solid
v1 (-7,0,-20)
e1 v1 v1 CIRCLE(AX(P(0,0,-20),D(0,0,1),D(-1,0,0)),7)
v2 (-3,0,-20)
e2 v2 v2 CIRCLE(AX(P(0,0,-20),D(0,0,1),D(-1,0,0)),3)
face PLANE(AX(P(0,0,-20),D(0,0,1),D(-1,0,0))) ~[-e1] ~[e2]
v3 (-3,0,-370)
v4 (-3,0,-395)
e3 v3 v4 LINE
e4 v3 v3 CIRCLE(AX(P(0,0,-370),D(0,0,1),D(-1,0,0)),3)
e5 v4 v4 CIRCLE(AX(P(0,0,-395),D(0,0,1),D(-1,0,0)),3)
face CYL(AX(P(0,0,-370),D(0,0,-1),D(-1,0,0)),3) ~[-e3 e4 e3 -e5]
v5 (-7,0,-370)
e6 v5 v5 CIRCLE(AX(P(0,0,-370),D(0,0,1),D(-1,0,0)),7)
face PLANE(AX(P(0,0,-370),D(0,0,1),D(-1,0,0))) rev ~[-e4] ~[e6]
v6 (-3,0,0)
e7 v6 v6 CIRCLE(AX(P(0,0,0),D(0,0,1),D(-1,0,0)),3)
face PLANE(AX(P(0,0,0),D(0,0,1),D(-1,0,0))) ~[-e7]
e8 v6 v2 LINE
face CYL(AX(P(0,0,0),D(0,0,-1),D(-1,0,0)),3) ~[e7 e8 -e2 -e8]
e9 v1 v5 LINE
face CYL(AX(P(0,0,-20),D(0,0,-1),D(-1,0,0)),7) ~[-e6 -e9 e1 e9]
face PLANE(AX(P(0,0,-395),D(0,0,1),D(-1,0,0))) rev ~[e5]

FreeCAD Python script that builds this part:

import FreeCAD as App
import Part
import Sketcher
from FreeCAD import Vector
Q = App.Units.Quantity


def add_polygon(sketch, points):
    """Adds a closed chain of lines whose ends are joined by coincident constraints."""
    first, n = sketch.GeometryCount, len(points)
    for a, b in zip(points, points[1:] + points[:1]):
        sketch.addGeometry(Part.LineSegment(App.Vector(*a, 0), App.Vector(*b, 0)), False)
    for i in range(n):
        sketch.addConstraint(Sketcher.Constraint("Coincident", first + i, 2, first + (i + 1) % n, 1))

doc = App.newDocument("Part")
params = doc.addObject("Spreadsheet::Sheet", "Params")
for row, (alias, value) in enumerate([
    ("sketch1_width", "3 mm"),
    ("sketch1_width2", "4 mm"),
    ("sketch1_height", "25 mm"),
    ("sketch1_height2", "350 mm"),
    ("sketch1_height3", "20 mm"),
    ("revolution_angle", "360 deg"),
], start=1):
    params.set(f"A{row}", alias)
    params.set(f"B{row}", "=" + value)
    params.setAlias(f"B{row}", alias)

body = doc.addObject("PartDesign::Body", "Body")

# Sketch on XZ plane
sketch1 = doc.addObject("Sketcher::SketchObject", "Sketch")
body.addObject(sketch1)
sketch1.AttachmentSupport = (doc.XZ_Plane, [""])
sketch1.MapMode = "FlatFace"
add_polygon(sketch1, [(-3, 0), (0, 0), (0, -395), (-3, -395), (-3, -370), (-7, -370), (-7, -20), (-3, -20)])  # lines 0-7
sketch1.addConstraint(Sketcher.Constraint("Horizontal", 0))
sketch1.addConstraint(Sketcher.Constraint("Vertical", 1))
sketch1.addConstraint(Sketcher.Constraint("Horizontal", 2))
sketch1.addConstraint(Sketcher.Constraint("Vertical", 3))
sketch1.addConstraint(Sketcher.Constraint("Horizontal", 4))
sketch1.addConstraint(Sketcher.Constraint("Vertical", 5))
sketch1.addConstraint(Sketcher.Constraint("Horizontal", 6))
sketch1.addConstraint(Sketcher.Constraint("Vertical", 7))
sketch1.addConstraint(Sketcher.Constraint("Coincident", 0, 2, -1, 1))
sketch1.addConstraint(Sketcher.Constraint("Vertical", 3, 2, 6, 2))
sketch1.addConstraint(Sketcher.Constraint("DistanceX", 0, 1, 0, 2, Q("3 mm")))
sketch1.addConstraint(Sketcher.Constraint("DistanceX", 4, 2, 4, 1, Q("4 mm")))
sketch1.addConstraint(Sketcher.Constraint("DistanceY", 3, 1, 3, 2, Q("25 mm")))
sketch1.addConstraint(Sketcher.Constraint("DistanceY", 5, 1, 5, 2, Q("350 mm")))
sketch1.addConstraint(Sketcher.Constraint("DistanceY", 7, 1, 7, 2, Q("20 mm")))
sketch1.setExpression("Constraints[18]", "Params.sketch1_width")
sketch1.setExpression("Constraints[19]", "Params.sketch1_width2")
sketch1.setExpression("Constraints[20]", "Params.sketch1_height")
sketch1.setExpression("Constraints[21]", "Params.sketch1_height2")
sketch1.setExpression("Constraints[22]", "Params.sketch1_height3")
revolution = doc.addObject("PartDesign::Revolution", "Revolution")
body.addObject(revolution)
revolution.Profile = sketch1
revolution.ReferenceAxis = (sketch1, ["V_Axis"])
revolution.setExpression("Angle", "Params.revolution_angle")

doc.recompute()
